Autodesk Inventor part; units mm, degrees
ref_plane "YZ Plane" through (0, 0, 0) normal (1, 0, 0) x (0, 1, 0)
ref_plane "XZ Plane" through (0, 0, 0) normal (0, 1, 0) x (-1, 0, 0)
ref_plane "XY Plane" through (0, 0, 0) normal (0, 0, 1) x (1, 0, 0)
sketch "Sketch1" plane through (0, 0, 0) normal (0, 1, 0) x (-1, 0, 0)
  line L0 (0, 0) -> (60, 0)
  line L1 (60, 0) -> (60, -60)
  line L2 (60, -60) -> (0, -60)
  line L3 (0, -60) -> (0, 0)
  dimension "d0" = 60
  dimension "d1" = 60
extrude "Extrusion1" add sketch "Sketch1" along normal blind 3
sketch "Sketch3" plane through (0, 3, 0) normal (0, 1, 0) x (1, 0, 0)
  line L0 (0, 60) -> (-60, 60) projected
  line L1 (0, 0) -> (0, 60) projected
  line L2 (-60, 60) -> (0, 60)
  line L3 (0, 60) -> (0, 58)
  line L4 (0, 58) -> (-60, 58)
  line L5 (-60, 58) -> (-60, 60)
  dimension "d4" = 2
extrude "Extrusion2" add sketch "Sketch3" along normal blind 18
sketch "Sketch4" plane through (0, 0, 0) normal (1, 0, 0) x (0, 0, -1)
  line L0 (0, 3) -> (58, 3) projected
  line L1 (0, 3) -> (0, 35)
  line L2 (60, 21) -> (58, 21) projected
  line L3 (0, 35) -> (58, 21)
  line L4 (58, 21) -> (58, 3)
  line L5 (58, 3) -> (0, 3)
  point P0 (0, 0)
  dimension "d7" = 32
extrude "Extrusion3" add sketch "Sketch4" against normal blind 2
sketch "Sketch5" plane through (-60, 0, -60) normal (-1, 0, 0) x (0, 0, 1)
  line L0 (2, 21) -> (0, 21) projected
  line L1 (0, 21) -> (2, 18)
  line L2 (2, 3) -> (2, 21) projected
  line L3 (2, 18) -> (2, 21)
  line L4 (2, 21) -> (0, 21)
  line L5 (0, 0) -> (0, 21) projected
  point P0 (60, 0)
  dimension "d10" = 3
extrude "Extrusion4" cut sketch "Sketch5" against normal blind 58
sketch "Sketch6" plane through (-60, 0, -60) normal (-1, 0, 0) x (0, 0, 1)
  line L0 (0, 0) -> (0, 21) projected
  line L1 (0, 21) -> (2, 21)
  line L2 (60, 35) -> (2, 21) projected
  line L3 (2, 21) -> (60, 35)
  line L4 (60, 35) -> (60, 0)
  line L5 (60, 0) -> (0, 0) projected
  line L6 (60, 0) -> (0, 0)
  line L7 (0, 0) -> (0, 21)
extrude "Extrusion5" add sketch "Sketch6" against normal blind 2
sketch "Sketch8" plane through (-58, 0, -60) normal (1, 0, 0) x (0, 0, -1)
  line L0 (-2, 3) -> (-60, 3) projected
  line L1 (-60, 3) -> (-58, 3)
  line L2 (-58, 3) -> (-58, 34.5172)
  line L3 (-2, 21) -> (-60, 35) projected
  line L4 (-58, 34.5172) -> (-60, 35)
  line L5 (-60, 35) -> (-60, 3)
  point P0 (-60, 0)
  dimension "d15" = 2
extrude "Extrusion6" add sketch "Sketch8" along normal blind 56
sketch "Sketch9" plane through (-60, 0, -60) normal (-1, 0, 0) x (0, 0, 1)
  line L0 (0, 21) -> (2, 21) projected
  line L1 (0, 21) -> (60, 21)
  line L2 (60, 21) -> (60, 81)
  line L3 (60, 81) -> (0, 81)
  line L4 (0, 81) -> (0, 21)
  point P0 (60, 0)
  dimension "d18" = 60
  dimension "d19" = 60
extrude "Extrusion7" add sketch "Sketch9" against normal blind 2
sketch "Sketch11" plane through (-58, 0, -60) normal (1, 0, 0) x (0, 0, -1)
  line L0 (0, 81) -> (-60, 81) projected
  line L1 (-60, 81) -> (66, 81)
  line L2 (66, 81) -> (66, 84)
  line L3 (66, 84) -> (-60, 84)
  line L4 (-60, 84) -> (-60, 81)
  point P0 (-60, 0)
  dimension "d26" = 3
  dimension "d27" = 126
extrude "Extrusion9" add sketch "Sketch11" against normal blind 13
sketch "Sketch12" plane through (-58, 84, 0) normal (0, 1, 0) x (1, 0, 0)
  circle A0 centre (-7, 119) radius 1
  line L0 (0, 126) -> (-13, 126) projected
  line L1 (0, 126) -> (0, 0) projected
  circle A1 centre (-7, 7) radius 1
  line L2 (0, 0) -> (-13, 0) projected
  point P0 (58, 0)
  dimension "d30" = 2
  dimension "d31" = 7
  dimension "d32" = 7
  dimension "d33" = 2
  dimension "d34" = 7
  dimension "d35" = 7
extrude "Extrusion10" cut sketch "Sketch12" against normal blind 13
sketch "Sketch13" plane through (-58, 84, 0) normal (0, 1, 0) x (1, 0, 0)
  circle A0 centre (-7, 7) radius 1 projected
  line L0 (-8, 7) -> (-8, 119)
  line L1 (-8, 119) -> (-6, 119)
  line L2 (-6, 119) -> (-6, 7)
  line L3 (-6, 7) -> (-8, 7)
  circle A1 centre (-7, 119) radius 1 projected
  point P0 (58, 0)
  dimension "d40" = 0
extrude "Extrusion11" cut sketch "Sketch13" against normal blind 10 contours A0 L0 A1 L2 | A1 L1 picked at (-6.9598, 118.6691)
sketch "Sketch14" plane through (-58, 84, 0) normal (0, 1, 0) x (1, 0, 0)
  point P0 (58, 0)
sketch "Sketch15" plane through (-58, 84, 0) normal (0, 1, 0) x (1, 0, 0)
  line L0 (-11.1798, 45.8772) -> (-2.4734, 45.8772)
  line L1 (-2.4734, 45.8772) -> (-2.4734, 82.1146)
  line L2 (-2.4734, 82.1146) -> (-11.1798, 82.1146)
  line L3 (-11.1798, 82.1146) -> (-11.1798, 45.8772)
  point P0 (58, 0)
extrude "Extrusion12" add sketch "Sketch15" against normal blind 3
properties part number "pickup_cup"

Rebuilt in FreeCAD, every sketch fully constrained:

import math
import FreeCAD as App
import Part
import Sketcher
from FreeCAD import Vector
Q = App.Units.Quantity

doc = App.newDocument("Part")
body = doc.addObject("PartDesign::Body", "Body")

# Sketch on XZ plane
sketch1 = body.newObject("Sketcher::SketchObject", "Sketch")
sketch1.AttachmentSupport = (doc.getObject("XZ_Plane"), [""])
sketch1.MapMode = "FlatFace"
sketch1.addGeometry([
    Part.LineSegment(Vector(-60, 0, 0), Vector(0, 0, 0)),
    Part.LineSegment(Vector(0, 0, 0), Vector(0, -60, 0)),
    Part.LineSegment(Vector(0, -60, 0), Vector(-60, -60, 0)),
    Part.LineSegment(Vector(-60, -60, 0), Vector(-60, 0, 0)),
], False)
sketch1.addConstraint([
    Sketcher.Constraint("Coincident", 0, 2, 1, 1),
    Sketcher.Constraint("Coincident", 1, 2, 2, 1),
    Sketcher.Constraint("Coincident", 2, 2, 3, 1),
    Sketcher.Constraint("Coincident", 3, 2, 0, 1),
    Sketcher.Constraint("Horizontal", 0),
    Sketcher.Constraint("Vertical", 1),
    Sketcher.Constraint("Horizontal", 2),
    Sketcher.Constraint("Vertical", 3),
    Sketcher.Constraint("Coincident", 0, 2, -1, 1),
    Sketcher.Constraint("Equal", 2, 1),
    Sketcher.Constraint("DistanceX", 0, 1, 0, 2, 60.0),
])
pad1 = body.newObject("PartDesign::Pad", "Pad")
pad1.Profile = sketch1
pad1.Length = 3
pad1.Reversed = True

# Sketch on XZ plane
sketch2 = body.newObject("Sketcher::SketchObject", "Sketch001")
sketch2.AttachmentSupport = (doc.getObject("XZ_Plane"), [""])
sketch2.MapMode = "FlatFace"
sketch2.AttachmentOffset = App.Placement(Vector(0, 0, -3), App.Rotation())
sketch2.addGeometry([
    Part.LineSegment(Vector(0, -58, 0), Vector(0, -60, 0)),
    Part.LineSegment(Vector(0, -60, 0), Vector(-60, -60, 0)),
    Part.LineSegment(Vector(-60, -60, 0), Vector(-60, -58, 0)),
    Part.LineSegment(Vector(-60, -58, 0), Vector(0, -58, 0)),
], False)
sketch2.addConstraint([
    Sketcher.Constraint("Coincident", 0, 2, 1, 1),
    Sketcher.Constraint("Coincident", 1, 2, 2, 1),
    Sketcher.Constraint("Coincident", 2, 2, 3, 1),
    Sketcher.Constraint("Coincident", 3, 2, 0, 1),
    Sketcher.Constraint("Vertical", 0),
    Sketcher.Constraint("Horizontal", 1),
    Sketcher.Constraint("Vertical", 2),
    Sketcher.Constraint("Horizontal", 3),
    Sketcher.Constraint("PointOnObject", 0, 2, -2),
    Sketcher.Constraint("DistanceY", 0, 2, 0, 1, 2.0),
    Sketcher.Constraint("DistanceX", 1, 2, 1, 1, 60.0),
    Sketcher.Constraint("DistanceY", 0, 2, -1, 1, 60.0),
])
pad2 = body.newObject("PartDesign::Pad", "Pad001")
pad2.Profile = sketch2
pad2.Length = 18
pad2.Reversed = True

# Sketch on YZ plane
sketch3 = body.newObject("Sketcher::SketchObject", "Sketch002")
sketch3.AttachmentSupport = (doc.getObject("YZ_Plane"), [""])
sketch3.MapMode = "FlatFace"
sketch3.addGeometry([
    Part.LineSegment(Vector(35, 0, 0), Vector(3, 0, 0)),
    Part.LineSegment(Vector(3, 0, 0), Vector(3, -58, 0)),
    Part.LineSegment(Vector(3, -58, 0), Vector(21, -58, 0)),
    Part.LineSegment(Vector(21, -58, 0), Vector(35, 0, 0)),
], False)
sketch3.addConstraint([
    Sketcher.Constraint("Coincident", 0, 2, 1, 1),
    Sketcher.Constraint("Coincident", 1, 2, 2, 1),
    Sketcher.Constraint("Coincident", 2, 2, 3, 1),
    Sketcher.Constraint("Coincident", 3, 2, 0, 1),
    Sketcher.Constraint("Horizontal", 0),
    Sketcher.Constraint("Vertical", 1),
    Sketcher.Constraint("Horizontal", 2),
    Sketcher.Constraint("PointOnObject", 0, 2, -1),
    Sketcher.Constraint("DistanceX", 0, 2, 0, 1, 32.0),
    Sketcher.Constraint("DistanceX", 2, 1, 2, 2, 18.0),
    Sketcher.Constraint("DistanceY", 1, 2, 1, 1, 58.0),
    Sketcher.Constraint("DistanceX", -1, 1, 0, 2, 3.0),
])
pad3 = body.newObject("PartDesign::Pad", "Pad002")
pad3.Profile = sketch3
pad3.Length = 2
pad3.Reversed = True

# Sketch on YZ plane
sketch4 = body.newObject("Sketcher::SketchObject", "Sketch003")
sketch4.AttachmentSupport = (doc.getObject("YZ_Plane"), [""])
sketch4.MapMode = "FlatFace"
sketch4.AttachmentOffset = App.Placement(Vector(0, 0, -60), App.Rotation())
sketch4.addGeometry([
    Part.LineSegment(Vector(18, -58, 0), Vector(21, -58, 0)),
    Part.LineSegment(Vector(21, -58, 0), Vector(21, -60, 0)),
    Part.LineSegment(Vector(21, -60, 0), Vector(18, -58, 0)),
], False)
sketch4.addConstraint([
    Sketcher.Constraint("Coincident", 0, 2, 1, 1),
    Sketcher.Constraint("Coincident", 1, 2, 2, 1),
    Sketcher.Constraint("Coincident", 2, 2, 0, 1),
    Sketcher.Constraint("Horizontal", 0),
    Sketcher.Constraint("Vertical", 1),
    Sketcher.Constraint("DistanceX", 0, 1, 0, 2, 3.0),
    Sketcher.Constraint("DistanceY", 1, 2, 1, 1, 2.0),
    Sketcher.Constraint("DistanceX", -1, 1, 0, 2, 21.0),
    Sketcher.Constraint("DistanceY", 0, 2, -1, 1, 58.0),
])
pocket1 = body.newObject("PartDesign::Pocket", "Pocket")
pocket1.Profile = sketch4
pocket1.Length = 58
pocket1.Reversed = True

# Sketch on YZ plane
sketch5 = body.newObject("Sketcher::SketchObject", "Sketch004")
sketch5.AttachmentSupport = (doc.getObject("YZ_Plane"), [""])
sketch5.MapMode = "FlatFace"
sketch5.AttachmentOffset = App.Placement(Vector(0, 0, -60), App.Rotation())
sketch5.addGeometry([
    Part.LineSegment(Vector(21, -60, 0), Vector(0, -60, 0)),  # 0
    Part.LineSegment(Vector(0, -60, 0), Vector(0, 0, 0)),  # 1
    Part.LineSegment(Vector(0, 0, 0), Vector(35, 0, 0)),  # 2
    Part.LineSegment(Vector(35, 0, 0), Vector(21, -58, 0)),  # 3
    Part.LineSegment(Vector(21, -58, 0), Vector(21, -60, 0)),  # 4
], False)
sketch5.addConstraint([
    Sketcher.Constraint("Coincident", 0, 2, 1, 1),
    Sketcher.Constraint("Coincident", 1, 2, 2, 1),
    Sketcher.Constraint("Coincident", 2, 2, 3, 1),
    Sketcher.Constraint("Coincident", 3, 2, 4, 1),
    Sketcher.Constraint("Coincident", 4, 2, 0, 1),
    Sketcher.Constraint("Horizontal", 0),
    Sketcher.Constraint("Vertical", 1),
    Sketcher.Constraint("Horizontal", 2),
    Sketcher.Constraint("Vertical", 4),
    Sketcher.Constraint("Coincident", 1, 2, -1, 1),
    Sketcher.Constraint("DistanceX", 0, 2, 0, 1, 21.0),
    Sketcher.Constraint("DistanceX", 2, 1, 2, 2, 35.0),
    Sketcher.Constraint("DistanceY", 1, 1, 1, 2, 60.0),
    Sketcher.Constraint("DistanceY", 4, 2, 4, 1, 2.0),
])
pad4 = body.newObject("PartDesign::Pad", "Pad003")
pad4.Profile = sketch5
pad4.Length = 2

# Sketch on YZ plane
sketch6 = body.newObject("Sketcher::SketchObject", "Sketch005")
sketch6.AttachmentSupport = (doc.getObject("YZ_Plane"), [""])
sketch6.MapMode = "FlatFace"
sketch6.AttachmentOffset = App.Placement(Vector(0, 0, -58), App.Rotation())
sketch6.addGeometry([
    Part.LineSegment(Vector(3, 0, 0), Vector(3, -2, 0)),
    Part.LineSegment(Vector(3, -2, 0), Vector(34.5, -2, 0)),
    Part.LineSegment(Vector(34.5, -2, 0), Vector(35, 0, 0)),
    Part.LineSegment(Vector(35, 0, 0), Vector(3, 0, 0)),
], False)
sketch6.addConstraint([
    Sketcher.Constraint("Coincident", 0, 2, 1, 1),
    Sketcher.Constraint("Coincident", 1, 2, 2, 1),
    Sketcher.Constraint("Coincident", 2, 2, 3, 1),
    Sketcher.Constraint("Coincident", 3, 2, 0, 1),
    Sketcher.Constraint("Vertical", 0),
    Sketcher.Constraint("Horizontal", 1),
    Sketcher.Constraint("Horizontal", 3),
    Sketcher.Constraint("PointOnObject", 2, 2, -1),
    Sketcher.Constraint("DistanceY", 0, 2, 0, 1, 2.0),
    Sketcher.Constraint("DistanceX", 3, 2, 3, 1, 32.0),
    Sketcher.Constraint("DistanceX", -1, 1, 0, 2, 3.0),
    Sketcher.Constraint("Angle", 2, Q("76.4296 deg")),
])
pad5 = body.newObject("PartDesign::Pad", "Pad004")
pad5.Profile = sketch6
pad5.Length = 56

# Sketch on YZ plane
sketch7 = body.newObject("Sketcher::SketchObject", "Sketch006")
sketch7.AttachmentSupport = (doc.getObject("YZ_Plane"), [""])
sketch7.MapMode = "FlatFace"
sketch7.AttachmentOffset = App.Placement(Vector(0, 0, -60), App.Rotation())
sketch7.addGeometry([
    Part.LineSegment(Vector(81, -60, 0), Vector(21, -60, 0)),
    Part.LineSegment(Vector(21, -60, 0), Vector(21, 0, 0)),
    Part.LineSegment(Vector(21, 0, 0), Vector(81, 0, 0)),
    Part.LineSegment(Vector(81, 0, 0), Vector(81, -60, 0)),
], False)
sketch7.addConstraint([
    Sketcher.Constraint("Coincident", 0, 2, 1, 1),
    Sketcher.Constraint("Coincident", 1, 2, 2, 1),
    Sketcher.Constraint("Coincident", 2, 2, 3, 1),
    Sketcher.Constraint("Coincident", 3, 2, 0, 1),
    Sketcher.Constraint("Horizontal", 0),
    Sketcher.Constraint("Vertical", 1),
    Sketcher.Constraint("Horizontal", 2),
    Sketcher.Constraint("Vertical", 3),
    Sketcher.Constraint("PointOnObject", 1, 2, -1),
    Sketcher.Constraint("Equal", 2, 1),
    Sketcher.Constraint("DistanceX", 0, 2, 0, 1, 60.0),
    Sketcher.Constraint("DistanceX", -1, 1, 0, 2, 21.0),
])
pad6 = body.newObject("PartDesign::Pad", "Pad005")
pad6.Profile = sketch7
pad6.Length = 2

# Sketch on YZ plane
sketch8 = body.newObject("Sketcher::SketchObject", "Sketch007")
sketch8.AttachmentSupport = (doc.getObject("YZ_Plane"), [""])
sketch8.MapMode = "FlatFace"
sketch8.AttachmentOffset = App.Placement(Vector(0, 0, -58), App.Rotation())
sketch8.addGeometry([
    Part.LineSegment(Vector(81, 0, 0), Vector(81, -126, 0)),
    Part.LineSegment(Vector(81, -126, 0), Vector(84, -126, 0)),
    Part.LineSegment(Vector(84, -126, 0), Vector(84, 0, 0)),
    Part.LineSegment(Vector(84, 0, 0), Vector(81, 0, 0)),
], False)
sketch8.addConstraint([
    Sketcher.Constraint("Coincident", 0, 2, 1, 1),
    Sketcher.Constraint("Coincident", 1, 2, 2, 1),
    Sketcher.Constraint("Coincident", 2, 2, 3, 1),
    Sketcher.Constraint("Coincident", 3, 2, 0, 1),
    Sketcher.Constraint("Vertical", 0),
    Sketcher.Constraint("Horizontal", 1),
    Sketcher.Constraint("Vertical", 2),
    Sketcher.Constraint("Horizontal", 3),
    Sketcher.Constraint("PointOnObject", 2, 2, -1),
    Sketcher.Constraint("DistanceX", 1, 1, 1, 2, 3.0),
    Sketcher.Constraint("DistanceY", 0, 2, 0, 1, 126.0),
    Sketcher.Constraint("DistanceX", -1, 1, 0, 2, 81.0),
])
pad7 = body.newObject("PartDesign::Pad", "Pad006")
pad7.Profile = sketch8
pad7.Length = 13
pad7.Reversed = True

# Sketch on XZ plane
sketch9 = body.newObject("Sketcher::SketchObject", "Sketch008")
sketch9.AttachmentSupport = (doc.getObject("XZ_Plane"), [""])
sketch9.MapMode = "FlatFace"
sketch9.AttachmentOffset = App.Placement(Vector(0, 0, -84), App.Rotation())
sketch9.addGeometry([
    Part.Circle(Vector(-65, -119, 0), Vector(0, 0, 1), 1),
    Part.Circle(Vector(-65, -7, 0), Vector(0, 0, 1), 1),
], False)
sketch9.addConstraint([
    Sketcher.Constraint("Equal", 0, 1),
    Sketcher.Constraint("Vertical", 0, 3, 1, 3),
    Sketcher.Constraint("Diameter", 0, 2.0),
    Sketcher.Constraint("DistanceY", 1, 3, -1, 1, 7.0),
    Sketcher.Constraint("DistanceX", 0, 3, -1, 1, 65.0),
    Sketcher.Constraint("DistanceY", 0, 3, -1, 1, 119.0),
])
pocket2 = body.newObject("PartDesign::Pocket", "Pocket001")
pocket2.Profile = sketch9
pocket2.Length = 13
pocket2.Reversed = True

# Sketch on XZ plane
sketch10 = body.newObject("Sketcher::SketchObject", "Sketch009")
sketch10.AttachmentSupport = (doc.getObject("XZ_Plane"), [""])
sketch10.MapMode = "FlatFace"
sketch10.AttachmentOffset = App.Placement(Vector(0, 0, -84), App.Rotation())
sketch10.addGeometry([
    Part.ArcOfCircle(Part.Circle(Vector(-65, -7, 0), Vector(0, 0, 1), 1), math.radians(180), math.radians(360)),
    Part.LineSegment(Vector(-64, -7, 0), Vector(-64, -119, 0)),
    Part.LineSegment(Vector(-64, -119, 0), Vector(-66, -119, 0)),
    Part.LineSegment(Vector(-66, -119, 0), Vector(-66, -7, 0)),
], False)
sketch10.addConstraint([
    Sketcher.Constraint("Tangent", 0, 2, 1, 1),
    Sketcher.Constraint("Coincident", 1, 2, 2, 1),
    Sketcher.Constraint("Coincident", 2, 2, 3, 1),
    Sketcher.Constraint("Tangent", 3, 2, 0, 1),
    Sketcher.Constraint("Vertical", 1),
    Sketcher.Constraint("Horizontal", 2),
    Sketcher.Constraint("Vertical", 3),
    Sketcher.Constraint("Radius", 0, 1.0),
    Sketcher.Constraint("DistanceY", 1, 2, 1, 1, 112.0),
    Sketcher.Constraint("DistanceX", 0, 3, -1, 1, 65.0),
    Sketcher.Constraint("DistanceY", 0, 3, -1, 1, 7.0),
])
pocket3 = body.newObject("PartDesign::Pocket", "Pocket002")
pocket3.Profile = sketch10
pocket3.Length = 10
pocket3.Reversed = True

# Sketch on XZ plane
sketch11 = body.newObject("Sketcher::SketchObject", "Sketch010")
sketch11.AttachmentSupport = (doc.getObject("XZ_Plane"), [""])
sketch11.MapMode = "FlatFace"
sketch11.AttachmentOffset = App.Placement(Vector(0, 0, -84), App.Rotation())
sketch11.addGeometry([
    Part.LineSegment(Vector(-69, -82, 0), Vector(-69, -46, 0)),
    Part.LineSegment(Vector(-69, -46, 0), Vector(-60, -46, 0)),
    Part.LineSegment(Vector(-60, -46, 0), Vector(-60, -82, 0)),
    Part.LineSegment(Vector(-60, -82, 0), Vector(-69, -82, 0)),
], False)
sketch11.addConstraint([
    Sketcher.Constraint("Coincident", 0, 2, 1, 1),
    Sketcher.Constraint("Coincident", 1, 2, 2, 1),
    Sketcher.Constraint("Coincident", 2, 2, 3, 1),
    Sketcher.Constraint("Coincident", 3, 2, 0, 1),
    Sketcher.Constraint("Vertical", 0),
    Sketcher.Constraint("Horizontal", 1),
    Sketcher.Constraint("Vertical", 2),
    Sketcher.Constraint("Horizontal", 3),
    Sketcher.Constraint("DistanceX", 1, 1, 1, 2, 8.7064),
    Sketcher.Constraint("DistanceY", 0, 1, 0, 2, 36.2374),
    Sketcher.Constraint("DistanceX", 0, 2, -1, 1, 69.1798),
    Sketcher.Constraint("DistanceY", 0, 2, -1, 1, 45.8772),
])
pad8 = body.newObject("PartDesign::Pad", "Pad007")
pad8.Profile = sketch11
pad8.Length = 3

doc.recompute()
